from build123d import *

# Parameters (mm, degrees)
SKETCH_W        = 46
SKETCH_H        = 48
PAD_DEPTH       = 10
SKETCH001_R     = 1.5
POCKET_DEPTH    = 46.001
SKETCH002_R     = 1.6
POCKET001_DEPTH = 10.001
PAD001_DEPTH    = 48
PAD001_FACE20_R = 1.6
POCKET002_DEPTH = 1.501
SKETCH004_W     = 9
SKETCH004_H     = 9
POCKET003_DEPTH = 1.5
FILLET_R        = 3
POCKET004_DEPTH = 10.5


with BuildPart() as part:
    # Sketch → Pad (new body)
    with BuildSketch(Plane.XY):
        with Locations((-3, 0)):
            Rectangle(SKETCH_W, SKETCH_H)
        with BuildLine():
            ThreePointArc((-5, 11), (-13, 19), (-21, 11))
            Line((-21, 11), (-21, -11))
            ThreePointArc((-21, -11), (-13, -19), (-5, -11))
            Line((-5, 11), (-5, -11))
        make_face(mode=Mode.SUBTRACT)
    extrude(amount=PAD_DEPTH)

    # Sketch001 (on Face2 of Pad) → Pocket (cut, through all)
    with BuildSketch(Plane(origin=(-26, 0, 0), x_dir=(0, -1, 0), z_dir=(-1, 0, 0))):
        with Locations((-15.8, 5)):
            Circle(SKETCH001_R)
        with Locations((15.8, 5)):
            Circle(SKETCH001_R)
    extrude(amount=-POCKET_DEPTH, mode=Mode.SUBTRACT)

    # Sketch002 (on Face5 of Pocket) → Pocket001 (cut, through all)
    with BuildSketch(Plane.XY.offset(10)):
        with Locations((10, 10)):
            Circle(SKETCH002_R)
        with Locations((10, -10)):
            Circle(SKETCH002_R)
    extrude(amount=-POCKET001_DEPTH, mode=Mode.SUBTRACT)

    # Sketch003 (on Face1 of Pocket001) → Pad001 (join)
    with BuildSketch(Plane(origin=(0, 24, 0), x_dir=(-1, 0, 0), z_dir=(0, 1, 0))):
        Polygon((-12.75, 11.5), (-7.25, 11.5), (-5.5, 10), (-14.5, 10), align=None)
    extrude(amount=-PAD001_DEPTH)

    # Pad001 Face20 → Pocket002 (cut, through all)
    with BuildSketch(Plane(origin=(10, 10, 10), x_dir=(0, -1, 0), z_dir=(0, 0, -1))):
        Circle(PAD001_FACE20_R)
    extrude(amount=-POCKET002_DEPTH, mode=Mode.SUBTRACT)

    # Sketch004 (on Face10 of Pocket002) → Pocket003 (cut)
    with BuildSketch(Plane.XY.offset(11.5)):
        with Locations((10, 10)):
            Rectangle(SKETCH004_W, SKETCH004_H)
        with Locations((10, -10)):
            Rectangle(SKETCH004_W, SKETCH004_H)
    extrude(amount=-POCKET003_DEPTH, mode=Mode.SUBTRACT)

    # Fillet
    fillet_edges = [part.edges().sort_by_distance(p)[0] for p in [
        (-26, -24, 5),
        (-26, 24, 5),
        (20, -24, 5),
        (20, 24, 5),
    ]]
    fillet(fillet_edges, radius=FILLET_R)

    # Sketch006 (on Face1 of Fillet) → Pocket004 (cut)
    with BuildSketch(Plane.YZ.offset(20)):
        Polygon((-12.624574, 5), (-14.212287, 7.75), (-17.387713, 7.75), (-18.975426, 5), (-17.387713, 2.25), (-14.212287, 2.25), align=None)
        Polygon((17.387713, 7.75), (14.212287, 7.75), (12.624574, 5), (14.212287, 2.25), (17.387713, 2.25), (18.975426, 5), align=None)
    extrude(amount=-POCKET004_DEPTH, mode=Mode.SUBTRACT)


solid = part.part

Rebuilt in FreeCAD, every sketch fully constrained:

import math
import FreeCAD as App
import Part
import Sketcher
from FreeCAD import Vector
Q = App.Units.Quantity


def edges_at(feature, points):
    """Names of the edges that pass closest to the given points."""
    edges = feature.Shape.Edges
    near = lambda p: min(range(len(edges)), key=lambda i: edges[i].distToShape(Part.Vertex(*p))[0])
    return sorted({f"Edge{near(p) + 1}" for p in points})

doc = App.newDocument("Part")
body = doc.addObject("PartDesign::Body", "Body")

# Sketch on XY plane
sketch1 = body.newObject("Sketcher::SketchObject", "Sketch")
sketch1.AttachmentSupport = (doc.getObject("XY_Plane"), [""])
sketch1.MapMode = "FlatFace"
sketch1.addGeometry(Part.LineSegment(Vector(-26, 24, 0), Vector(-26, -24, 0)), False)
sketch1.addGeometry(Part.LineSegment(Vector(-26, -24, 0), Vector(20, -24, 0)), False)
sketch1.addGeometry(Part.LineSegment(Vector(20, -24, 0), Vector(20, 24, 0)), False)
sketch1.addGeometry(Part.LineSegment(Vector(20, 24, 0), Vector(-26, 24, 0)), False)
sketch1.addGeometry(Part.ArcOfCircle(Part.Circle(Vector(-13, 11, 0), Vector(0, 0, 1), 8), math.radians(0), math.radians(180)), False)
sketch1.addGeometry(Part.LineSegment(Vector(-5, 11, 0), Vector(-5, -11, 0)), False)
sketch1.addGeometry(Part.ArcOfCircle(Part.Circle(Vector(-13, -11, 0), Vector(0, 0, 1), 8), math.radians(180), math.radians(360)), False)
sketch1.addGeometry(Part.LineSegment(Vector(-21, -11, 0), Vector(-21, 11, 0)), False)
sketch1.addConstraint(Sketcher.Constraint("Coincident", 0, 2, 1, 1))
sketch1.addConstraint(Sketcher.Constraint("Coincident", 1, 2, 2, 1))
sketch1.addConstraint(Sketcher.Constraint("Coincident", 2, 2, 3, 1))
sketch1.addConstraint(Sketcher.Constraint("Coincident", 3, 2, 0, 1))
sketch1.addConstraint(Sketcher.Constraint("Tangent", 4, 1, 5, 1))
sketch1.addConstraint(Sketcher.Constraint("Tangent", 5, 2, 6, 2))
sketch1.addConstraint(Sketcher.Constraint("Tangent", 6, 1, 7, 1))
sketch1.addConstraint(Sketcher.Constraint("Tangent", 7, 2, 4, 2))
sketch1.addConstraint(Sketcher.Constraint("Vertical", 0))
sketch1.addConstraint(Sketcher.Constraint("Horizontal", 1))
sketch1.addConstraint(Sketcher.Constraint("Vertical", 2))
sketch1.addConstraint(Sketcher.Constraint("Horizontal", 3))
sketch1.addConstraint(Sketcher.Constraint("Vertical", 5))
sketch1.addConstraint(Sketcher.Constraint("Vertical", 7))
sketch1.addConstraint(Sketcher.Constraint("Radius", 4, Q("8 mm")))
sketch1.addConstraint(Sketcher.Constraint("DistanceX", 1, 1, 1, 2, Q("46 mm")))
sketch1.addConstraint(Sketcher.Constraint("DistanceY", 0, 2, 0, 1, Q("48 mm")))
sketch1.addConstraint(Sketcher.Constraint("DistanceY", 5, 2, 5, 1, Q("22 mm")))
sketch1.addConstraint(Sketcher.Constraint("DistanceX", 4, 3, -1, 1, Q("13 mm")))
sketch1.addConstraint(Sketcher.Constraint("DistanceY", -1, 1, 4, 3, Q("11 mm")))
sketch1.addConstraint(Sketcher.Constraint("DistanceX", 0, 2, -1, 1, Q("26 mm")))
sketch1.addConstraint(Sketcher.Constraint("DistanceY", 0, 2, -1, 1, Q("24 mm")))
pad1 = body.newObject("PartDesign::Pad", "Pad")
pad1.Profile = sketch1
pad1.Length = 10

# Sketch on YZ plane
sketch2 = body.newObject("Sketcher::SketchObject", "Sketch001")
sketch2.AttachmentSupport = (doc.getObject("YZ_Plane"), [""])
sketch2.MapMode = "FlatFace"
sketch2.AttachmentOffset = App.Placement(Vector(0, 0, -26), App.Rotation())
sketch2.addGeometry(Part.Circle(Vector(15.8, 5, 0), Vector(0, 0, 1), 1.5), False)
sketch2.addGeometry(Part.Circle(Vector(-15.8, 5, 0), Vector(0, 0, 1), 1.5), False)
sketch2.addConstraint(Sketcher.Constraint("Equal", 0, 1))
sketch2.addConstraint(Sketcher.Constraint("Symmetric", 0, 3, 1, 3, -2))
sketch2.addConstraint(Sketcher.Constraint("Diameter", 0, Q("3 mm")))
sketch2.addConstraint(Sketcher.Constraint("DistanceY", -1, 1, 0, 3, Q("5 mm")))
sketch2.addConstraint(Sketcher.Constraint("DistanceX", -1, 1, 0, 3, Q("15.8 mm")))
pocket1 = body.newObject("PartDesign::Pocket", "Pocket")
pocket1.Profile = sketch2
pocket1.Type = "ThroughAll"
pocket1.Reversed = True

# Sketch on XY plane
sketch3 = body.newObject("Sketcher::SketchObject", "Sketch002")
sketch3.AttachmentSupport = (doc.getObject("XY_Plane"), [""])
sketch3.MapMode = "FlatFace"
sketch3.AttachmentOffset = App.Placement(Vector(0, 0, 10), App.Rotation())
sketch3.addGeometry(Part.Circle(Vector(10, 10, 0), Vector(0, 0, 1), 1.6), False)
sketch3.addGeometry(Part.Circle(Vector(10, -10, 0), Vector(0, 0, 1), 1.6), False)
sketch3.addConstraint(Sketcher.Constraint("Equal", 0, 1))
sketch3.addConstraint(Sketcher.Constraint("Symmetric", 0, 3, 1, 3, -1))
sketch3.addConstraint(Sketcher.Constraint("Diameter", 0, Q("3.2 mm")))
sketch3.addConstraint(Sketcher.Constraint("DistanceX", -1, 1, 0, 3, Q("10 mm")))
sketch3.addConstraint(Sketcher.Constraint("DistanceY", -1, 1, 0, 3, Q("10 mm")))
pocket2 = body.newObject("PartDesign::Pocket", "Pocket001")
pocket2.Profile = sketch3
pocket2.Type = "ThroughAll"

# Sketch on XZ plane
sketch4 = body.newObject("Sketcher::SketchObject", "Sketch003")
sketch4.AttachmentSupport = (doc.getObject("XZ_Plane"), [""])
sketch4.MapMode = "FlatFace"
sketch4.AttachmentOffset = App.Placement(Vector(0, 0, -24), App.Rotation())
sketch4.addGeometry(Part.LineSegment(Vector(7.2, 11.5, 0), Vector(12.8, 11.5, 0)), False)
sketch4.addGeometry(Part.LineSegment(Vector(12.8, 11.5, 0), Vector(14.5, 10, 0)), False)
sketch4.addGeometry(Part.LineSegment(Vector(14.5, 10, 0), Vector(5.5, 10, 0)), False)
sketch4.addGeometry(Part.LineSegment(Vector(5.5, 10, 0), Vector(7.2, 11.5, 0)), False)
sketch4.addConstraint(Sketcher.Constraint("Coincident", 0, 2, 1, 1))
sketch4.addConstraint(Sketcher.Constraint("Coincident", 1, 2, 2, 1))
sketch4.addConstraint(Sketcher.Constraint("Coincident", 2, 2, 3, 1))
sketch4.addConstraint(Sketcher.Constraint("Coincident", 3, 2, 0, 1))
sketch4.addConstraint(Sketcher.Constraint("Horizontal", 0))
sketch4.addConstraint(Sketcher.Constraint("Horizontal", 2))
sketch4.addConstraint(Sketcher.Constraint("Equal", 1, 3))
sketch4.addConstraint(Sketcher.Constraint("DistanceX", 2, 2, 2, 1, Q("9 mm")))
sketch4.addConstraint(Sketcher.Constraint("DistanceX", 0, 1, 0, 2, Q("5.5 mm")))
sketch4.addConstraint(Sketcher.Constraint("DistanceY", -1, 1, 1, 2, Q("10 mm")))
sketch4.addConstraint(Sketcher.Constraint("DistanceY", -1, 1, 0, 2, Q("11.5 mm")))
sketch4.addConstraint(Sketcher.Constraint("DistanceX", -1, 1, 1, 2, Q("14.5 mm")))
pad2 = body.newObject("PartDesign::Pad", "Pad001")
pad2.Profile = sketch4
pad2.Length = 48

# Sketch on XY plane
sketch5 = body.newObject("Sketcher::SketchObject", "Sketch004")
sketch5.AttachmentSupport = (doc.getObject("XY_Plane"), [""])
sketch5.MapMode = "FlatFace"
sketch5.AttachmentOffset = App.Placement(Vector(0, 0, 10), App.Rotation())
sketch5.addGeometry(Part.Circle(Vector(10, 10, 0), Vector(0, 0, 1), 1.6), False)
sketch5.addConstraint(Sketcher.Constraint("Diameter", 0, Q("3.2 mm")))
sketch5.addConstraint(Sketcher.Constraint("DistanceX", -1, 1, 0, 3, Q("10 mm")))
sketch5.addConstraint(Sketcher.Constraint("DistanceY", -1, 1, 0, 3, Q("10 mm")))
pocket3 = body.newObject("PartDesign::Pocket", "Pocket002")
pocket3.Profile = sketch5
pocket3.Type = "ThroughAll"
pocket3.Reversed = True

# Sketch on XY plane
sketch6 = body.newObject("Sketcher::SketchObject", "Sketch005")
sketch6.AttachmentSupport = (doc.getObject("XY_Plane"), [""])
sketch6.MapMode = "FlatFace"
sketch6.AttachmentOffset = App.Placement(Vector(0, 0, 11.5), App.Rotation())
sketch6.addGeometry(Part.LineSegment(Vector(6, 14, 0), Vector(6, 6, 0)), False)
sketch6.addGeometry(Part.LineSegment(Vector(6, 6, 0), Vector(14, 6, 0)), False)
sketch6.addGeometry(Part.LineSegment(Vector(14, 6, 0), Vector(14, 14, 0)), False)
sketch6.addGeometry(Part.LineSegment(Vector(14, 14, 0), Vector(6, 14, 0)), False)
sketch6.addGeometry(Part.LineSegment(Vector(6, -6, 0), Vector(6, -14, 0)), False)
sketch6.addGeometry(Part.LineSegment(Vector(6, -14, 0), Vector(14, -14, 0)), False)
sketch6.addGeometry(Part.LineSegment(Vector(14, -14, 0), Vector(14, -6, 0)), False)
sketch6.addGeometry(Part.LineSegment(Vector(14, -6, 0), Vector(6, -6, 0)), False)
sketch6.addConstraint(Sketcher.Constraint("Coincident", 0, 2, 1, 1))
sketch6.addConstraint(Sketcher.Constraint("Coincident", 1, 2, 2, 1))
sketch6.addConstraint(Sketcher.Constraint("Coincident", 2, 2, 3, 1))
sketch6.addConstraint(Sketcher.Constraint("Coincident", 3, 2, 0, 1))
sketch6.addConstraint(Sketcher.Constraint("Coincident", 4, 2, 5, 1))
sketch6.addConstraint(Sketcher.Constraint("Coincident", 5, 2, 6, 1))
sketch6.addConstraint(Sketcher.Constraint("Coincident", 6, 2, 7, 1))
sketch6.addConstraint(Sketcher.Constraint("Coincident", 7, 2, 4, 1))
sketch6.addConstraint(Sketcher.Constraint("Vertical", 0))
sketch6.addConstraint(Sketcher.Constraint("Horizontal", 1))
sketch6.addConstraint(Sketcher.Constraint("Vertical", 2))
sketch6.addConstraint(Sketcher.Constraint("Horizontal", 3))
sketch6.addConstraint(Sketcher.Constraint("Vertical", 4))
sketch6.addConstraint(Sketcher.Constraint("Horizontal", 5))
sketch6.addConstraint(Sketcher.Constraint("Vertical", 6))
sketch6.addConstraint(Sketcher.Constraint("Horizontal", 7))
sketch6.addConstraint(Sketcher.Constraint("Symmetric", 3, 2, 4, 2, -1))
sketch6.addConstraint(Sketcher.Constraint("Symmetric", 1, 2, 6, 2, -1))
sketch6.addConstraint(Sketcher.Constraint("Equal", 7, 0))
sketch6.addConstraint(Sketcher.Constraint("DistanceX", 1, 1, 1, 2, Q("9 mm")))
sketch6.addConstraint(Sketcher.Constraint("DistanceY", 4, 2, 0, 2, Q("20 mm")))
sketch6.addConstraint(Sketcher.Constraint("DistanceX", -1, 1, 0, 2, Q("5.5 mm")))
pocket4 = body.newObject("PartDesign::Pocket", "Pocket003")
pocket4.Profile = sketch6
pocket4.Length = 1.5
doc.recompute()

fillet = body.newObject("PartDesign::Fillet", "Fillet")
fillet.Base = (pocket4, edges_at(pocket4, [
    (-26, -24, 5),
    (-26, 24, 5),
    (20, -24, 5),
    (20, 24, 5),
]))
fillet.Radius = 3

# Sketch on YZ plane
sketch7 = body.newObject("Sketcher::SketchObject", "Sketch006")
sketch7.AttachmentSupport = (doc.getObject("YZ_Plane"), [""])
sketch7.MapMode = "FlatFace"
sketch7.AttachmentOffset = App.Placement(Vector(0, 0, 20), App.Rotation())
sketch7.addGeometry(Part.LineSegment(Vector(-12.6, 5, 0), Vector(-14.2, 7.8, 0)), False)
sketch7.addGeometry(Part.LineSegment(Vector(-14.2, 7.8, 0), Vector(-17.4, 7.8, 0)), False)
sketch7.addGeometry(Part.LineSegment(Vector(-17.4, 7.8, 0), Vector(-19, 5, 0)), False)
sketch7.addGeometry(Part.LineSegment(Vector(-19, 5, 0), Vector(-17.4, 2.2, 0)), False)
sketch7.addGeometry(Part.LineSegment(Vector(-17.4, 2.2, 0), Vector(-14.2, 2.2, 0)), False)
sketch7.addGeometry(Part.LineSegment(Vector(-14.2, 2.2, 0), Vector(-12.6, 5, 0)), False)
sketch7.addGeometry(Part.LineSegment(Vector(17.4, 7.8, 0), Vector(14.2, 7.8, 0)), False)
sketch7.addGeometry(Part.LineSegment(Vector(14.2, 7.8, 0), Vector(12.6, 5, 0)), False)
sketch7.addGeometry(Part.LineSegment(Vector(12.6, 5, 0), Vector(14.2, 2.2, 0)), False)
sketch7.addGeometry(Part.LineSegment(Vector(14.2, 2.2, 0), Vector(17.4, 2.2, 0)), False)
sketch7.addGeometry(Part.LineSegment(Vector(17.4, 2.2, 0), Vector(19, 5, 0)), False)
sketch7.addGeometry(Part.LineSegment(Vector(19, 5, 0), Vector(17.4, 7.8, 0)), False)
sketch7.addConstraint(Sketcher.Constraint("Coincident", 0, 2, 1, 1))
sketch7.addConstraint(Sketcher.Constraint("Coincident", 1, 2, 2, 1))
sketch7.addConstraint(Sketcher.Constraint("Coincident", 2, 2, 3, 1))
sketch7.addConstraint(Sketcher.Constraint("Coincident", 3, 2, 4, 1))
sketch7.addConstraint(Sketcher.Constraint("Coincident", 4, 2, 5, 1))
sketch7.addConstraint(Sketcher.Constraint("Coincident", 5, 2, 0, 1))
sketch7.addConstraint(Sketcher.Constraint("Coincident", 6, 2, 7, 1))
sketch7.addConstraint(Sketcher.Constraint("Coincident", 7, 2, 8, 1))
sketch7.addConstraint(Sketcher.Constraint("Coincident", 8, 2, 9, 1))
sketch7.addConstraint(Sketcher.Constraint("Coincident", 9, 2, 10, 1))
sketch7.addConstraint(Sketcher.Constraint("Coincident", 10, 2, 11, 1))
sketch7.addConstraint(Sketcher.Constraint("Coincident", 11, 2, 6, 1))
sketch7.addConstraint(Sketcher.Constraint("Horizontal", 1))
sketch7.addConstraint(Sketcher.Constraint("Horizontal", 4))
sketch7.addConstraint(Sketcher.Constraint("Horizontal", 6))
sketch7.addConstraint(Sketcher.Constraint("Horizontal", 9))
sketch7.addConstraint(Sketcher.Constraint("Symmetric", 0, 2, 6, 2, -2))
sketch7.addConstraint(Sketcher.Constraint("Symmetric", 5, 2, 7, 2, -2))
sketch7.addConstraint(Sketcher.Constraint("Symmetric", 4, 2, 8, 2, -2))
sketch7.addConstraint(Sketcher.Constraint("Symmetric", 2, 2, 10, 2, -2))
sketch7.addConstraint(Sketcher.Constraint("Parallel", 0, 3))
sketch7.addConstraint(Sketcher.Constraint("Parallel", 2, 5))
sketch7.addConstraint(Sketcher.Constraint("Parallel", 5, 7))
sketch7.addConstraint(Sketcher.Constraint("Parallel", 7, 10))
sketch7.addConstraint(Sketcher.Constraint("Parallel", 8, 11))
sketch7.addConstraint(Sketcher.Constraint("Horizontal", 2, 2, 5, 2))
sketch7.addConstraint(Sketcher.Constraint("Vertical", 1, 2, 3, 2))
sketch7.addConstraint(Sketcher.Constraint("Angle", 0, Q("119.999996 deg")))
sketch7.addConstraint(Sketcher.Constraint("DistanceY", -1, 1, 2, 2, Q("5 mm")))
sketch7.addConstraint(Sketcher.Constraint("DistanceY", 3, 2, 1, 2, Q("5.5 mm")))
sketch7.addConstraint(Sketcher.Constraint("DistanceX", 1, 2, 6, 2, Q("31.6 mm")))
sketch7.addConstraint(Sketcher.Constraint("DistanceX", 1, 2, 1, 1, Q("3.175426 mm")))
pocket5 = body.newObject("PartDesign::Pocket", "Pocket004")
pocket5.Profile = sketch7
pocket5.Length = 10.5

doc.recompute()
